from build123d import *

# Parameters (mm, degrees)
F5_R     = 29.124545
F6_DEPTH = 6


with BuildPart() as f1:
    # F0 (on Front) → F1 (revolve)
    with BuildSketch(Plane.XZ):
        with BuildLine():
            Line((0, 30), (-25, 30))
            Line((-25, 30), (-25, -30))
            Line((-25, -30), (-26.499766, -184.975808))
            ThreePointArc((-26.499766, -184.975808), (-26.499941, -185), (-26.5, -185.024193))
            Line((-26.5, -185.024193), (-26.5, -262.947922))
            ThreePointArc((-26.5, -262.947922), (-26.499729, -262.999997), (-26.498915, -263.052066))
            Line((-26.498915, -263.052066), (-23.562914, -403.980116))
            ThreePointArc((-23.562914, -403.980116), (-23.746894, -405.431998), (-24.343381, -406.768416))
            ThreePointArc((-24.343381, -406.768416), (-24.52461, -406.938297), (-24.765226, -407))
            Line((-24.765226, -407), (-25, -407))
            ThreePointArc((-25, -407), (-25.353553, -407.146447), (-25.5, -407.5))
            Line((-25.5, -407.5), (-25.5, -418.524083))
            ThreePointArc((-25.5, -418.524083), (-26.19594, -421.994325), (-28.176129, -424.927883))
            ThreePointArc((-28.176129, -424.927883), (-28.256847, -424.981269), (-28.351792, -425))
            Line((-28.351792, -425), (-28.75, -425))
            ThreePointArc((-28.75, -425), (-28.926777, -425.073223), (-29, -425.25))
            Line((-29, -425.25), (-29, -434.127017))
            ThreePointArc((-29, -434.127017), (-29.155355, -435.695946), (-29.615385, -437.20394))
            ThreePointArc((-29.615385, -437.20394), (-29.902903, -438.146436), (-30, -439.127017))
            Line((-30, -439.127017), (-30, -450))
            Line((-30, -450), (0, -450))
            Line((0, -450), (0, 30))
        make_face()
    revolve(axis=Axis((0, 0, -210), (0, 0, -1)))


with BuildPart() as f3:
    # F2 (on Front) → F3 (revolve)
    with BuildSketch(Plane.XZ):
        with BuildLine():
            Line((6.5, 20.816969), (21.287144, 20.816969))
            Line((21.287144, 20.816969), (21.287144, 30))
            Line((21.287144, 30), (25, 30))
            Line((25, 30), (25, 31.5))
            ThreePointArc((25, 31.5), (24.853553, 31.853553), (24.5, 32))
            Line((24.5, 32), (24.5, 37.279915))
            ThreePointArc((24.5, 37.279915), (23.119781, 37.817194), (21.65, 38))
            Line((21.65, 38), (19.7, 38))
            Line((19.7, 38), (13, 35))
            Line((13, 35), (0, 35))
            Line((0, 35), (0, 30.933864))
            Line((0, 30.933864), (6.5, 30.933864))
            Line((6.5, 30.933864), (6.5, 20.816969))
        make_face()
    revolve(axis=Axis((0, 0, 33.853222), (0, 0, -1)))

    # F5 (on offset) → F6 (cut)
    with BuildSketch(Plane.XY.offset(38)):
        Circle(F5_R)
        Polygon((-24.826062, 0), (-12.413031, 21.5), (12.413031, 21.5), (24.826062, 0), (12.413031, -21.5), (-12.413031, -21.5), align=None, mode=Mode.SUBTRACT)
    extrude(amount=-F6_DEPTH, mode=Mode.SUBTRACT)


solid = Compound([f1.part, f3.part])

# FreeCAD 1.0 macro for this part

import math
import FreeCAD as App
import Part
import Sketcher
Q = App.Units.Quantity

doc = App.newDocument("Part")
body = doc.addObject("PartDesign::Body", "Body")

sketch1 = body.newObject("Sketcher::SketchObject", "Sketch")
sketch1.AttachmentSupport = (doc.getObject("XZ_Plane"), [""])
sketch1.MapMode = "FlatFace"
sketch1.addGeometry([
    Part.LineSegment(App.Vector(0, 30, 0), App.Vector(-25, 30, 0)),
    Part.LineSegment(App.Vector(-25, 30, 0), App.Vector(-25, -30, 0)),
    Part.LineSegment(App.Vector(-25, -30, 0), App.Vector(-26.499766, -184.975808, 0)),
    Part.ArcOfCircle(Part.Circle(App.Vector(-21.454512, -185.024401, 0), App.Vector(0, 0, 1), 5.045488), math.radians(179.448177), math.radians(179.997638)),
    Part.LineSegment(App.Vector(-26.5, -185.024193, 0), App.Vector(-26.5, -262.947922, 0)),
    Part.ArcOfCircle(Part.Circle(App.Vector(-21.506084, -262.947972, 0), App.Vector(0, 0, 1), 4.993916), math.radians(179.99943), math.radians(181.194373)),
    Part.LineSegment(App.Vector(-26.498915, -263.052066, 0), App.Vector(-23.562914, -403.980116, 0)),
    Part.ArcOfCircle(Part.Circle(App.Vector(-28.56183, -404.08426, 0), App.Vector(0, 0, 1), 5), math.radians(-32.468185), math.radians(1.193486)),
    Part.ArcOfCircle(Part.Circle(App.Vector(-24.765225, -406.500001, 0), App.Vector(0, 0, 1), 0.499999), math.radians(-90.000101), math.radians(-32.468186)),
    Part.LineSegment(App.Vector(-24.765226, -407, 0), App.Vector(-25, -407, 0)),
    Part.ArcOfCircle(Part.Circle(App.Vector(-24.999999, -407.500001, 0), App.Vector(0, 0, 1), 0.500001), math.radians(90.000153), math.radians(179.999847)),
    Part.LineSegment(App.Vector(-25.5, -407.5, 0), App.Vector(-25.5, -418.524083, 0)),
    Part.ArcOfCircle(Part.Circle(App.Vector(-34.500005, -418.524081, 0), App.Vector(0, 0, 1), 9.000005), math.radians(-45.359797), math.radians(-0.000014)),
    Part.ArcOfCircle(Part.Circle(App.Vector(-28.351793, -424.75, 0), App.Vector(0, 0, 1), 0.25), math.radians(-89.999865), math.radians(-45.359738)),
    Part.LineSegment(App.Vector(-28.351792, -425, 0), App.Vector(-28.75, -425, 0)),
    Part.ArcOfCircle(Part.Circle(App.Vector(-28.750001, -425.249999, 0), App.Vector(0, 0, 1), 0.249999), math.radians(89.999762), math.radians(180.000238)),
    Part.LineSegment(App.Vector(-29, -425.25, 0), App.Vector(-29, -434.127017, 0)),
    Part.ArcOfCircle(Part.Circle(App.Vector(-37.000011, -434.127014, 0), App.Vector(0, 0, 1), 8.000011), math.radians(-22.619856), math.radians(-0.000023)),
    Part.ArcOfCircle(Part.Circle(App.Vector(-24.999975, -439.127021, 0), App.Vector(0, 0, 1), 5.000025), math.radians(157.380205), math.radians(179.999953)),
    Part.LineSegment(App.Vector(-30, -439.127017, 0), App.Vector(-30, -450, 0)),
    Part.LineSegment(App.Vector(-30, -450, 0), App.Vector(0, -450, 0)),
    Part.LineSegment(App.Vector(0, -450, 0), App.Vector(0, 30, 0)),
], False)
sketch1.addConstraint([
    Sketcher.Constraint("Coincident", 0, 2, 1, 1),
    Sketcher.Constraint("Coincident", 1, 2, 2, 1),
    Sketcher.Constraint("Coincident", 2, 2, 3, 1),
    Sketcher.Constraint("Coincident", 3, 2, 4, 1),
    Sketcher.Constraint("Coincident", 4, 2, 5, 1),
    Sketcher.Constraint("Coincident", 5, 2, 6, 1),
    Sketcher.Constraint("Coincident", 6, 2, 7, 2),
    Sketcher.Constraint("Coincident", 7, 1, 8, 2),
    Sketcher.Constraint("Coincident", 8, 1, 9, 1),
    Sketcher.Constraint("Coincident", 9, 2, 10, 1),
    Sketcher.Constraint("Coincident", 10, 2, 11, 1),
    Sketcher.Constraint("Coincident", 11, 2, 12, 2),
    Sketcher.Constraint("Coincident", 12, 1, 13, 2),
    Sketcher.Constraint("Coincident", 13, 1, 14, 1),
    Sketcher.Constraint("Coincident", 14, 2, 15, 1),
    Sketcher.Constraint("Coincident", 15, 2, 16, 1),
    Sketcher.Constraint("Coincident", 16, 2, 17, 2),
    Sketcher.Constraint("Coincident", 17, 1, 18, 1),
    Sketcher.Constraint("Coincident", 18, 2, 19, 1),
    Sketcher.Constraint("Coincident", 19, 2, 20, 1),
    Sketcher.Constraint("Coincident", 20, 2, 21, 1),
    Sketcher.Constraint("Coincident", 21, 2, 0, 1),
    Sketcher.Constraint("Horizontal", 0),
    Sketcher.Constraint("Vertical", 1),
    Sketcher.Constraint("Vertical", 4),
    Sketcher.Constraint("Horizontal", 9),
    Sketcher.Constraint("Vertical", 11),
    Sketcher.Constraint("Horizontal", 14),
    Sketcher.Constraint("Vertical", 16),
    Sketcher.Constraint("Vertical", 19),
    Sketcher.Constraint("Horizontal", 20),
    Sketcher.Constraint("Vertical", 21),
    Sketcher.Constraint("PointOnObject", 20, 2, -2),
    Sketcher.Constraint("Radius", 7, Q("5 mm")),
    Sketcher.Constraint("Radius", 8, Q("0.499999 mm")),
    Sketcher.Constraint("Radius", 10, Q("0.500001 mm")),
    Sketcher.Constraint("DistanceX", 0, 2, 0, 1, Q("25 mm")),
    Sketcher.Constraint("DistanceX", 20, 1, 20, 2, Q("30 mm")),
    Sketcher.Constraint("DistanceY", 1, 2, 1, 1, Q("60 mm")),
    Sketcher.Constraint("DistanceY", 21, 1, 21, 2, Q("480 mm")),
    Sketcher.Constraint("Radius", 13, Q("0.25 mm")),
    Sketcher.Constraint("Radius", 15, Q("0.249999 mm")),
    Sketcher.Constraint("DistanceX", 10, 3, -1, 1, Q("24.999999 mm")),
    Sketcher.Constraint("DistanceY", -1, 1, 0, 2, Q("30 mm")),
    Sketcher.Constraint("DistanceY", 8, 1, -1, 1, Q("407 mm")),
    Sketcher.Constraint("DistanceX", 9, 2, -1, 1, Q("25 mm")),
    Sketcher.Constraint("DistanceY", 13, 1, -1, 1, Q("425 mm")),
    Sketcher.Constraint("DistanceX", 15, 2, -1, 1, Q("29 mm")),
    Sketcher.Constraint("DistanceY", 10, 2, 8, 3, Q("0.999999 mm")),
    Sketcher.Constraint("DistanceY", 18, 2, 16, 2, Q("5 mm")),
    Sketcher.Constraint("DistanceX", 3, 2, -1, 1, Q("26.5 mm")),
    Sketcher.Constraint("DistanceY", 15, 2, 13, 3, Q("0.5 mm")),
    Sketcher.Constraint("DistanceX", 14, 2, -1, 1, Q("28.75 mm")),
    Sketcher.Constraint("Radius", 17, Q("8.000011 mm")),
    Sketcher.Constraint("Radius", 3, Q("5.045488 mm")),
    Sketcher.Constraint("Radius", 5, Q("4.993916 mm")),
    Sketcher.Constraint("Radius", 12, Q("9.000005 mm")),
    Sketcher.Constraint("Radius", 18, Q("5.000025 mm")),
    Sketcher.Constraint("DistanceX", 14, 2, 14, 1, Q("0.398208 mm")),
    Sketcher.Constraint("DistanceY", 4, 2, 4, 1, Q("77.923729 mm")),
    Sketcher.Constraint("DistanceY", 3, 3, -1, 1, Q("185.024401 mm")),
    Sketcher.Constraint("DistanceY", 7, 1, 6, 2, Q("2.7883 mm")),
    Sketcher.Constraint("DistanceY", 12, 1, 11, 2, Q("6.4038 mm")),
    Sketcher.Constraint("Distance", 6, Q("140.95863 mm")),
    Sketcher.Constraint("DistanceX", 9, 2, 9, 1, Q("0.234774 mm")),
    Sketcher.Constraint("DistanceY", 11, 2, 11, 1, Q("11.024083 mm")),
    Sketcher.Constraint("DistanceY", 16, 2, 16, 1, Q("8.877017 mm")),
    Sketcher.Constraint("DistanceY", 5, 3, -1, 1, Q("262.947972 mm")),
    Sketcher.Constraint("DistanceX", 7, 3, -1, 1, Q("28.56183 mm")),
    Sketcher.Constraint("DistanceY", 7, 3, -1, 1, Q("404.08426 mm")),
    Sketcher.Constraint("DistanceY", 12, 3, -1, 1, Q("418.524081 mm")),
    Sketcher.Constraint("DistanceY", 18, 3, -1, 1, Q("439.127021 mm")),
    Sketcher.Constraint("DistanceY", 2, 2, -1, 1, Q("184.975808 mm")),
    Sketcher.Constraint("DistanceY", 4, 2, -1, 1, Q("262.947922 mm")),
    Sketcher.Constraint("DistanceX", 7, 1, -1, 1, Q("24.343381 mm")),
    Sketcher.Constraint("DistanceY", 17, 1, -1, 1, Q("437.20394 mm")),
])
revolution = body.newObject("PartDesign::Revolution", "Revolution")
revolution.Profile = sketch1
revolution.ReferenceAxis = (sketch1, ["V_Axis"])
revolution.Angle = 360
body2 = doc.addObject("PartDesign::Body", "Body001")

sketch2 = body2.newObject("Sketcher::SketchObject", "Sketch001")
sketch2.AttachmentSupport = (doc.getObject("XZ_Plane001"), [""])
sketch2.MapMode = "FlatFace"
sketch2.addGeometry([
    Part.LineSegment(App.Vector(6.5, 20.816969, 0), App.Vector(21.287144, 20.816969, 0)),
    Part.LineSegment(App.Vector(21.287144, 20.816969, 0), App.Vector(21.287144, 30, 0)),
    Part.LineSegment(App.Vector(21.287144, 30, 0), App.Vector(25, 30, 0)),
    Part.LineSegment(App.Vector(25, 30, 0), App.Vector(25, 31.5, 0)),
    Part.ArcOfCircle(Part.Circle(App.Vector(24.499999, 31.499999, 0), App.Vector(0, 0, 1), 0.500001), math.radians(0.000153), math.radians(89.999847)),
    Part.LineSegment(App.Vector(24.5, 32, 0), App.Vector(24.5, 37.279915, 0)),
    Part.ArcOfCircle(Part.Circle(App.Vector(21.650001, 32.000003, 0), App.Vector(0, 0, 1), 5.999997), math.radians(61.640648), math.radians(90.00001)),
    Part.LineSegment(App.Vector(21.65, 38, 0), App.Vector(19.7, 38, 0)),
    Part.LineSegment(App.Vector(19.7, 38, 0), App.Vector(13, 35, 0)),
    Part.LineSegment(App.Vector(13, 35, 0), App.Vector(0, 35, 0)),
    Part.LineSegment(App.Vector(0, 35, 0), App.Vector(0, 30.933864, 0)),
    Part.LineSegment(App.Vector(0, 30.933864, 0), App.Vector(6.5, 30.933864, 0)),
    Part.LineSegment(App.Vector(6.5, 30.933864, 0), App.Vector(6.5, 20.816969, 0)),
], False)
sketch2.addConstraint([
    Sketcher.Constraint("Coincident", 0, 2, 1, 1),
    Sketcher.Constraint("Coincident", 1, 2, 2, 1),
    Sketcher.Constraint("Coincident", 2, 2, 3, 1),
    Sketcher.Constraint("Coincident", 3, 2, 4, 1),
    Sketcher.Constraint("Coincident", 4, 2, 5, 1),
    Sketcher.Constraint("Coincident", 5, 2, 6, 1),
    Sketcher.Constraint("Tangent", 6, 2, 7, 1),
    Sketcher.Constraint("Coincident", 7, 2, 8, 1),
    Sketcher.Constraint("Coincident", 8, 2, 9, 1),
    Sketcher.Constraint("Coincident", 9, 2, 10, 1),
    Sketcher.Constraint("Coincident", 10, 2, 11, 1),
    Sketcher.Constraint("Coincident", 11, 2, 12, 1),
    Sketcher.Constraint("Coincident", 12, 2, 0, 1),
    Sketcher.Constraint("Horizontal", 0),
    Sketcher.Constraint("Vertical", 1),
    Sketcher.Constraint("Horizontal", 2),
    Sketcher.Constraint("Vertical", 3),
    Sketcher.Constraint("Vertical", 5),
    Sketcher.Constraint("Horizontal", 7),
    Sketcher.Constraint("Horizontal", 9),
    Sketcher.Constraint("Vertical", 10),
    Sketcher.Constraint("Horizontal", 11),
    Sketcher.Constraint("Vertical", 12),
    Sketcher.Constraint("PointOnObject", 9, 2, -2),
    Sketcher.Constraint("Horizontal", 4, 3, 3, 2),
    Sketcher.Constraint("Radius", 4, Q("0.500001 mm")),
    Sketcher.Constraint("DistanceX", 9, 2, 9, 1, Q("13 mm")),
    Sketcher.Constraint("DistanceX", 11, 1, 11, 2, Q("6.5 mm")),
    Sketcher.Constraint("DistanceY", 3, 1, 3, 2, Q("1.5 mm")),
    Sketcher.Constraint("DistanceY", -1, 1, 1, 2, Q("30 mm")),
    Sketcher.Constraint("DistanceX", -1, 1, 2, 2, Q("25 mm")),
    Sketcher.Constraint("DistanceY", -1, 1, 6, 2, Q("38 mm")),
    Sketcher.Constraint("DistanceY", -1, 1, 8, 2, Q("35 mm")),
    Sketcher.Constraint("DistanceX", 7, 2, 7, 1, Q("1.95 mm")),
    Sketcher.Constraint("DistanceX", -1, 1, 4, 2, Q("24.5 mm")),
    Sketcher.Constraint("DistanceX", -1, 1, 7, 2, Q("19.7 mm")),
    Sketcher.Constraint("Radius", 6, Q("5.999997 mm")),
    Sketcher.Constraint("DistanceY", 1, 1, 1, 2, Q("9.183031 mm")),
    Sketcher.Constraint("DistanceX", 0, 1, 0, 2, Q("14.787144 mm")),
    Sketcher.Constraint("DistanceY", 10, 2, 10, 1, Q("4.066136 mm")),
])
revolution2 = body2.newObject("PartDesign::Revolution", "Revolution001")
revolution2.Profile = sketch2
revolution2.ReferenceAxis = (sketch2, ["V_Axis"])
revolution2.Angle = 360

sketch3 = body2.newObject("Sketcher::SketchObject", "Sketch002")
sketch3.AttachmentSupport = (doc.getObject("XY_Plane001"), [""])
sketch3.MapMode = "FlatFace"
sketch3.AttachmentOffset = App.Placement(App.Vector(0, 0, 38), App.Rotation())
sketch3.addGeometry([
    Part.Circle(App.Vector(0, 0, 0), App.Vector(0, 0, 1), 29.124545),
    Part.LineSegment(App.Vector(-12.413031, -21.5, 0), App.Vector(-24.826062, 0, 0)),
    Part.LineSegment(App.Vector(-24.826062, 0, 0), App.Vector(-12.413031, 21.5, 0)),
    Part.LineSegment(App.Vector(-12.413031, 21.5, 0), App.Vector(12.413031, 21.5, 0)),
    Part.LineSegment(App.Vector(12.413031, 21.5, 0), App.Vector(24.826062, 0, 0)),
    Part.LineSegment(App.Vector(24.826062, 0, 0), App.Vector(12.413031, -21.5, 0)),
    Part.LineSegment(App.Vector(12.413031, -21.5, 0), App.Vector(-12.413031, -21.5, 0)),
], False)
sketch3.addConstraint([
    Sketcher.Constraint("Coincident", 1, 2, 2, 1),
    Sketcher.Constraint("Coincident", 2, 2, 3, 1),
    Sketcher.Constraint("Coincident", 3, 2, 4, 1),
    Sketcher.Constraint("Coincident", 4, 2, 5, 1),
    Sketcher.Constraint("Coincident", 5, 2, 6, 1),
    Sketcher.Constraint("Coincident", 6, 2, 1, 1),
    Sketcher.Constraint("Horizontal", 3),
    Sketcher.Constraint("Horizontal", 6),
    Sketcher.Constraint("Coincident", 0, 3, -1, 1),
    Sketcher.Constraint("Symmetric", 1, 2, 4, 2, -1, 1),
    Sketcher.Constraint("Symmetric", 2, 2, 5, 2, -1, 1),
    Sketcher.Constraint("PointOnObject", 1, 2, -1),
    Sketcher.Constraint("Parallel", 1, 4),
    Sketcher.Constraint("Vertical", 3, 2, 5, 2),
    Sketcher.Constraint("Angle", 1, Q("120 deg")),
    Sketcher.Constraint("DistanceY", 5, 2, 3, 2, Q("43 mm")),
    Sketcher.Constraint("Diameter", 0, Q("58.24909 mm")),
    Sketcher.Constraint("DistanceX", 3, 1, 3, 2, Q("24.826062 mm")),
])
pocket1 = body2.newObject("PartDesign::Pocket", "Pocket")
pocket1.Profile = sketch3
pocket1.Length = 6

doc.recompute()
